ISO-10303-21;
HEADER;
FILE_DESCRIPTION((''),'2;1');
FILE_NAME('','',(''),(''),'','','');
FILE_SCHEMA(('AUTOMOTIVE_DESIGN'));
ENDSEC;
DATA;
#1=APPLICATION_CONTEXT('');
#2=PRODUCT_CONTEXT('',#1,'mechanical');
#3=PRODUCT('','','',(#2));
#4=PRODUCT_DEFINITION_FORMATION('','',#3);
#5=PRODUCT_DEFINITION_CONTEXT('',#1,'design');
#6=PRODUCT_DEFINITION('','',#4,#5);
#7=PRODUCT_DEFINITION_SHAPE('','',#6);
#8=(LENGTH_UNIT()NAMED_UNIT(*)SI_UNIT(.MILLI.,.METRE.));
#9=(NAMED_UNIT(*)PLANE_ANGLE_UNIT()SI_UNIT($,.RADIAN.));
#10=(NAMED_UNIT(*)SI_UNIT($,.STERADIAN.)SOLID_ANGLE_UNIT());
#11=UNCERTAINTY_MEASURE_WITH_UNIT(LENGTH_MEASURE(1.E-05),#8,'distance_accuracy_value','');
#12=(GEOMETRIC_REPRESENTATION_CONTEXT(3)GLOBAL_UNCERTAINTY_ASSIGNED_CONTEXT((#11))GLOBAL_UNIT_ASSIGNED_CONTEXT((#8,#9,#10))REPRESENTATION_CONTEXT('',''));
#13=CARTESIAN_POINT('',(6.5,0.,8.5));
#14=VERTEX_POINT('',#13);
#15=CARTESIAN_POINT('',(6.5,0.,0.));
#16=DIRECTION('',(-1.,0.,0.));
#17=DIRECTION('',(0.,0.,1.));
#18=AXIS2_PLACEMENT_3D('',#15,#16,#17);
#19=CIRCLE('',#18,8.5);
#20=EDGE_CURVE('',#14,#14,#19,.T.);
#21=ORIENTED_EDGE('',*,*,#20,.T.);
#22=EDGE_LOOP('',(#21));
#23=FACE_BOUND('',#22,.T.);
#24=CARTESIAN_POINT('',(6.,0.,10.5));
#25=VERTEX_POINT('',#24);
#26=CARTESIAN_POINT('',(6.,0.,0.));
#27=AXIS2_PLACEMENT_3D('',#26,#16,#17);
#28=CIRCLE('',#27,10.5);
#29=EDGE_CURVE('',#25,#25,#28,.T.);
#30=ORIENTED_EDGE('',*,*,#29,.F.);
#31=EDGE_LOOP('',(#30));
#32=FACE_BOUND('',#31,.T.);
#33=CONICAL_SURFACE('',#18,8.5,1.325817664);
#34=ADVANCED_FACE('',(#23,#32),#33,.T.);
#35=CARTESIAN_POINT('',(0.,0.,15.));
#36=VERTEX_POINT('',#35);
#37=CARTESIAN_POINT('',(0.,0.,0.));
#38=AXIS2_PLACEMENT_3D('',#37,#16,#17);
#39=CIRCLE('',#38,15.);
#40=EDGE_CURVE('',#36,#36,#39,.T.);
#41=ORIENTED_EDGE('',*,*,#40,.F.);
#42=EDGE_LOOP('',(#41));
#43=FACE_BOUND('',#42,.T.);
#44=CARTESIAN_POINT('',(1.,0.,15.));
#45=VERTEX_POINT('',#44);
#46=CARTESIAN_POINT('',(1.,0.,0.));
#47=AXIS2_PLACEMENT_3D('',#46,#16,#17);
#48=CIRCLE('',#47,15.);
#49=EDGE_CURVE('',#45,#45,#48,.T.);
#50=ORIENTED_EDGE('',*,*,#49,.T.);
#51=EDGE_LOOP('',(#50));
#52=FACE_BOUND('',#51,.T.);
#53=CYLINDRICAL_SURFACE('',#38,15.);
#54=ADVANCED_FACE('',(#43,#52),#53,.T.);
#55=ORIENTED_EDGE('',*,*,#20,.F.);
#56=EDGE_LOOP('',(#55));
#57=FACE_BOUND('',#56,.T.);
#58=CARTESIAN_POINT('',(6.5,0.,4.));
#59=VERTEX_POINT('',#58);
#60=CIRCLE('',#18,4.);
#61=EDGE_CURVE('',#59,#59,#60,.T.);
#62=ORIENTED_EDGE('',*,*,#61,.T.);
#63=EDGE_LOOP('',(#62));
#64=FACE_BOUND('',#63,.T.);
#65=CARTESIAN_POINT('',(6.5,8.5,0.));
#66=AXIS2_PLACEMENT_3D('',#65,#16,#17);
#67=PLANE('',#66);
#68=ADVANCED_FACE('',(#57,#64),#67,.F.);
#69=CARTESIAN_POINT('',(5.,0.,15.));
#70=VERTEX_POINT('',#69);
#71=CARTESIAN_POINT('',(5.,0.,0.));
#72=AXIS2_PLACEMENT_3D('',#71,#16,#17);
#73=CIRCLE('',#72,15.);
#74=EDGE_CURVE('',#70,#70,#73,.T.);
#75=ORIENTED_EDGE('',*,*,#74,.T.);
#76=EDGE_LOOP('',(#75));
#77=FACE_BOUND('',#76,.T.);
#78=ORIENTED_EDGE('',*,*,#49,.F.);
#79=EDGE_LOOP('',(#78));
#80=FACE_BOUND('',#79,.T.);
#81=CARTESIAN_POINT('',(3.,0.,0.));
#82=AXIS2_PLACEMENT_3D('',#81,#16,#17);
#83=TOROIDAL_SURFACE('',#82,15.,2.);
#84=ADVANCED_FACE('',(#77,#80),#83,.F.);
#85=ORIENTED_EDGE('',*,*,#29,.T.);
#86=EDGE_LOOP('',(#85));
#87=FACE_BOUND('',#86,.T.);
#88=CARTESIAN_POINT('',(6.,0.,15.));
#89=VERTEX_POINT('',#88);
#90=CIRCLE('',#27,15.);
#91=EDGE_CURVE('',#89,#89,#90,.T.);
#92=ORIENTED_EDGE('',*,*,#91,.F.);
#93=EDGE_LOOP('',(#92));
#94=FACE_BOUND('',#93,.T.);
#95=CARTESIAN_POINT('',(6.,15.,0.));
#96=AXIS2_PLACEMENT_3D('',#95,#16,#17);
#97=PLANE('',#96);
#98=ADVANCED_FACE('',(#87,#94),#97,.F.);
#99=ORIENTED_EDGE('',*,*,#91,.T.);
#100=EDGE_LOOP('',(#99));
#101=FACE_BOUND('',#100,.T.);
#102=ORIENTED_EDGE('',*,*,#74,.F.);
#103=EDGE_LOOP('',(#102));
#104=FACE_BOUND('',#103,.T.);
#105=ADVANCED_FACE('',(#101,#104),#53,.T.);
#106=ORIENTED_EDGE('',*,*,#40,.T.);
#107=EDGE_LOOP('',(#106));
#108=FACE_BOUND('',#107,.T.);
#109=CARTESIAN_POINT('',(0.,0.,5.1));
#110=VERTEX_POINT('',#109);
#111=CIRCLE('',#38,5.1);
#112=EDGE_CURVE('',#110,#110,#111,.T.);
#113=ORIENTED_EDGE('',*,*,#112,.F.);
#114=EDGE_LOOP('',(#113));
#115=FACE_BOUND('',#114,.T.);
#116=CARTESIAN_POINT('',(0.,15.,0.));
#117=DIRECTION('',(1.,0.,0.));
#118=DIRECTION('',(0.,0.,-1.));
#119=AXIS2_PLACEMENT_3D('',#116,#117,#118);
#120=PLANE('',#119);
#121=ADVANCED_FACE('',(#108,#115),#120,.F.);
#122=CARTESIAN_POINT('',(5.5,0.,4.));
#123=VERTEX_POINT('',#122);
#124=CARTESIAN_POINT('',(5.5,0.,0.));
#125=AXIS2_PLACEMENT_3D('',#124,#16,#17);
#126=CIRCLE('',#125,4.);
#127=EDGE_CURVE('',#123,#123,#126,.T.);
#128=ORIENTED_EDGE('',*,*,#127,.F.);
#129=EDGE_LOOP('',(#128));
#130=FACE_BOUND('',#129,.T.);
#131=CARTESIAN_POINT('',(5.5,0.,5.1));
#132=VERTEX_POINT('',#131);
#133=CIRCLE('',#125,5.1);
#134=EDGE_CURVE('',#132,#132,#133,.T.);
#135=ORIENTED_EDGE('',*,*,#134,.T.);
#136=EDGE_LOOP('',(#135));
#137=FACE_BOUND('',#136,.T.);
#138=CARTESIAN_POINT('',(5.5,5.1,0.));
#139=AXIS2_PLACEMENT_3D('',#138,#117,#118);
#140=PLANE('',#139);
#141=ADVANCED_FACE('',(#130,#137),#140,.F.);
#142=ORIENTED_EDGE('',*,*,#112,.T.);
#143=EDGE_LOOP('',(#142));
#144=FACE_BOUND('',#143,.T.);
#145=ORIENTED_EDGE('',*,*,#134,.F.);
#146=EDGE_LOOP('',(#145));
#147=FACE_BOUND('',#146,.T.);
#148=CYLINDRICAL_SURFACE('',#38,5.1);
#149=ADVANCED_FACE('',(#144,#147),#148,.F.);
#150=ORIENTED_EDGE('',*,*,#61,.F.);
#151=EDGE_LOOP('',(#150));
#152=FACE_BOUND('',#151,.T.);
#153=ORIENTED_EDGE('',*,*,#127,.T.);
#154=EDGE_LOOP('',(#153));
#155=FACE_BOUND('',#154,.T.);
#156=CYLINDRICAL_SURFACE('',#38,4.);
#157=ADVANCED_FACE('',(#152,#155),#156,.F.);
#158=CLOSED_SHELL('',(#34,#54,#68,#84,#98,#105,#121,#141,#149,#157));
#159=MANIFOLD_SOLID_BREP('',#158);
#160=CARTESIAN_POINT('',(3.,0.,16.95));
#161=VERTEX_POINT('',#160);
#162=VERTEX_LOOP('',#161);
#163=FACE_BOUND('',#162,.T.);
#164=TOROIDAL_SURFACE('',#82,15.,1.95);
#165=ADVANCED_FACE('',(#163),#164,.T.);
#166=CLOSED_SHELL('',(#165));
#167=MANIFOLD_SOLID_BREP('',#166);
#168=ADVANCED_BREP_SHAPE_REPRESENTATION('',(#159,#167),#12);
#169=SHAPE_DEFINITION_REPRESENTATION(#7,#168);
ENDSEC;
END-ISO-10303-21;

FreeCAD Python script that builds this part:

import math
import FreeCAD as App
import Part
import Sketcher

V = App.Vector
Q = App.Units.Quantity

doc = App.newDocument("Part")
body = doc.addObject("PartDesign::Body", "Body")
body.AllowCompound = True

# Sketch on XY plane
sketch1 = body.newObject("Sketcher::SketchObject", "Sketch")
sketch1.AttachmentSupport = (doc.getObject("XY_Plane"), [""])
sketch1.MapMode = "FlatFace"
sketch1.addGeometry([
    Part.Circle(V(3, 15, 0), V(0, 0, 1), 1.9),  # 0
    Part.LineSegment(V(5.5, 5.1, 0), V(5.5, 4, 0)),  # 1
    Part.LineSegment(V(5.5, 4, 0), V(6.5, 4, 0)),  # 2
    Part.LineSegment(V(6.5, 4, 0), V(6.5, 8.5, 0)),  # 3
    Part.LineSegment(V(6.5, 8.5, 0), V(6, 10.5, 0)),  # 4
    Part.LineSegment(V(6, 10.5, 0), V(6, 15, 0)),  # 5
    Part.LineSegment(V(6, 15, 0), V(5, 15, 0)),  # 6
    Part.ArcOfCircle(Part.Circle(V(3, 15, 0), V(0, 0, 1), 2), math.radians(180), math.radians(360)),  # 7
    Part.LineSegment(V(1, 15, 0), V(0, 15, 0)),  # 8
    Part.LineSegment(V(0, 15, 0), V(0, 5.1, 0)),  # 9
    Part.LineSegment(V(0, 5.1, 0), V(5.5, 5.1, 0)),  # 10
], False)
sketch1.addConstraint([
    Sketcher.Constraint("Coincident", 1, 2, 2, 1),
    Sketcher.Constraint("Coincident", 2, 2, 3, 1),
    Sketcher.Constraint("Coincident", 3, 2, 4, 1),
    Sketcher.Constraint("Coincident", 4, 2, 5, 1),
    Sketcher.Constraint("Coincident", 5, 2, 6, 1),
    Sketcher.Constraint("Coincident", 6, 2, 7, 2),
    Sketcher.Constraint("Coincident", 7, 1, 8, 1),
    Sketcher.Constraint("Coincident", 8, 2, 9, 1),
    Sketcher.Constraint("Coincident", 9, 2, 10, 1),
    Sketcher.Constraint("Coincident", 10, 2, 1, 1),
    Sketcher.Constraint("Vertical", 1),
    Sketcher.Constraint("Horizontal", 2),
    Sketcher.Constraint("Vertical", 3),
    Sketcher.Constraint("Vertical", 5),
    Sketcher.Constraint("Horizontal", 6),
    Sketcher.Constraint("Horizontal", 8),
    Sketcher.Constraint("Vertical", 9),
    Sketcher.Constraint("Horizontal", 10),
    Sketcher.Constraint("Coincident", 7, 3, 0, 3),
    Sketcher.Constraint("PointOnObject", 8, 2, -2),
    Sketcher.Constraint("Horizontal", 7, 3, 5, 2),
    Sketcher.Constraint("Horizontal", 6, 2, 7, 1),
    Sketcher.Constraint("Equal", 2, 6),
    Sketcher.Constraint("Equal", 6, 8),
    Sketcher.Constraint("Equal", 3, 5),
    Sketcher.Constraint("Radius", 7, Q("2 mm")),
    Sketcher.Constraint("Diameter", 0, Q("3.9 mm")),
    Sketcher.Constraint("DistanceX", 2, 1, 2, 2, Q("1 mm")),
    Sketcher.Constraint("DistanceX", 10, 1, 10, 2, Q("5.5 mm")),
    Sketcher.Constraint("DistanceY", 1, 2, 1, 1, Q("1.1 mm")),
    Sketcher.Constraint("DistanceY", 3, 1, 3, 2, Q("4.5 mm")),
    Sketcher.Constraint("DistanceY", 9, 2, 9, 1, Q("9.9 mm")),
    Sketcher.Constraint("DistanceY", -1, 1, 0, 3, Q("15 mm")),
])
revolution = body.newObject("PartDesign::Revolution", "Revolution")
revolution.Profile = sketch1
revolution.ReferenceAxis = (sketch1, ["H_Axis"])
revolution.Angle = 360

doc.recompute()
